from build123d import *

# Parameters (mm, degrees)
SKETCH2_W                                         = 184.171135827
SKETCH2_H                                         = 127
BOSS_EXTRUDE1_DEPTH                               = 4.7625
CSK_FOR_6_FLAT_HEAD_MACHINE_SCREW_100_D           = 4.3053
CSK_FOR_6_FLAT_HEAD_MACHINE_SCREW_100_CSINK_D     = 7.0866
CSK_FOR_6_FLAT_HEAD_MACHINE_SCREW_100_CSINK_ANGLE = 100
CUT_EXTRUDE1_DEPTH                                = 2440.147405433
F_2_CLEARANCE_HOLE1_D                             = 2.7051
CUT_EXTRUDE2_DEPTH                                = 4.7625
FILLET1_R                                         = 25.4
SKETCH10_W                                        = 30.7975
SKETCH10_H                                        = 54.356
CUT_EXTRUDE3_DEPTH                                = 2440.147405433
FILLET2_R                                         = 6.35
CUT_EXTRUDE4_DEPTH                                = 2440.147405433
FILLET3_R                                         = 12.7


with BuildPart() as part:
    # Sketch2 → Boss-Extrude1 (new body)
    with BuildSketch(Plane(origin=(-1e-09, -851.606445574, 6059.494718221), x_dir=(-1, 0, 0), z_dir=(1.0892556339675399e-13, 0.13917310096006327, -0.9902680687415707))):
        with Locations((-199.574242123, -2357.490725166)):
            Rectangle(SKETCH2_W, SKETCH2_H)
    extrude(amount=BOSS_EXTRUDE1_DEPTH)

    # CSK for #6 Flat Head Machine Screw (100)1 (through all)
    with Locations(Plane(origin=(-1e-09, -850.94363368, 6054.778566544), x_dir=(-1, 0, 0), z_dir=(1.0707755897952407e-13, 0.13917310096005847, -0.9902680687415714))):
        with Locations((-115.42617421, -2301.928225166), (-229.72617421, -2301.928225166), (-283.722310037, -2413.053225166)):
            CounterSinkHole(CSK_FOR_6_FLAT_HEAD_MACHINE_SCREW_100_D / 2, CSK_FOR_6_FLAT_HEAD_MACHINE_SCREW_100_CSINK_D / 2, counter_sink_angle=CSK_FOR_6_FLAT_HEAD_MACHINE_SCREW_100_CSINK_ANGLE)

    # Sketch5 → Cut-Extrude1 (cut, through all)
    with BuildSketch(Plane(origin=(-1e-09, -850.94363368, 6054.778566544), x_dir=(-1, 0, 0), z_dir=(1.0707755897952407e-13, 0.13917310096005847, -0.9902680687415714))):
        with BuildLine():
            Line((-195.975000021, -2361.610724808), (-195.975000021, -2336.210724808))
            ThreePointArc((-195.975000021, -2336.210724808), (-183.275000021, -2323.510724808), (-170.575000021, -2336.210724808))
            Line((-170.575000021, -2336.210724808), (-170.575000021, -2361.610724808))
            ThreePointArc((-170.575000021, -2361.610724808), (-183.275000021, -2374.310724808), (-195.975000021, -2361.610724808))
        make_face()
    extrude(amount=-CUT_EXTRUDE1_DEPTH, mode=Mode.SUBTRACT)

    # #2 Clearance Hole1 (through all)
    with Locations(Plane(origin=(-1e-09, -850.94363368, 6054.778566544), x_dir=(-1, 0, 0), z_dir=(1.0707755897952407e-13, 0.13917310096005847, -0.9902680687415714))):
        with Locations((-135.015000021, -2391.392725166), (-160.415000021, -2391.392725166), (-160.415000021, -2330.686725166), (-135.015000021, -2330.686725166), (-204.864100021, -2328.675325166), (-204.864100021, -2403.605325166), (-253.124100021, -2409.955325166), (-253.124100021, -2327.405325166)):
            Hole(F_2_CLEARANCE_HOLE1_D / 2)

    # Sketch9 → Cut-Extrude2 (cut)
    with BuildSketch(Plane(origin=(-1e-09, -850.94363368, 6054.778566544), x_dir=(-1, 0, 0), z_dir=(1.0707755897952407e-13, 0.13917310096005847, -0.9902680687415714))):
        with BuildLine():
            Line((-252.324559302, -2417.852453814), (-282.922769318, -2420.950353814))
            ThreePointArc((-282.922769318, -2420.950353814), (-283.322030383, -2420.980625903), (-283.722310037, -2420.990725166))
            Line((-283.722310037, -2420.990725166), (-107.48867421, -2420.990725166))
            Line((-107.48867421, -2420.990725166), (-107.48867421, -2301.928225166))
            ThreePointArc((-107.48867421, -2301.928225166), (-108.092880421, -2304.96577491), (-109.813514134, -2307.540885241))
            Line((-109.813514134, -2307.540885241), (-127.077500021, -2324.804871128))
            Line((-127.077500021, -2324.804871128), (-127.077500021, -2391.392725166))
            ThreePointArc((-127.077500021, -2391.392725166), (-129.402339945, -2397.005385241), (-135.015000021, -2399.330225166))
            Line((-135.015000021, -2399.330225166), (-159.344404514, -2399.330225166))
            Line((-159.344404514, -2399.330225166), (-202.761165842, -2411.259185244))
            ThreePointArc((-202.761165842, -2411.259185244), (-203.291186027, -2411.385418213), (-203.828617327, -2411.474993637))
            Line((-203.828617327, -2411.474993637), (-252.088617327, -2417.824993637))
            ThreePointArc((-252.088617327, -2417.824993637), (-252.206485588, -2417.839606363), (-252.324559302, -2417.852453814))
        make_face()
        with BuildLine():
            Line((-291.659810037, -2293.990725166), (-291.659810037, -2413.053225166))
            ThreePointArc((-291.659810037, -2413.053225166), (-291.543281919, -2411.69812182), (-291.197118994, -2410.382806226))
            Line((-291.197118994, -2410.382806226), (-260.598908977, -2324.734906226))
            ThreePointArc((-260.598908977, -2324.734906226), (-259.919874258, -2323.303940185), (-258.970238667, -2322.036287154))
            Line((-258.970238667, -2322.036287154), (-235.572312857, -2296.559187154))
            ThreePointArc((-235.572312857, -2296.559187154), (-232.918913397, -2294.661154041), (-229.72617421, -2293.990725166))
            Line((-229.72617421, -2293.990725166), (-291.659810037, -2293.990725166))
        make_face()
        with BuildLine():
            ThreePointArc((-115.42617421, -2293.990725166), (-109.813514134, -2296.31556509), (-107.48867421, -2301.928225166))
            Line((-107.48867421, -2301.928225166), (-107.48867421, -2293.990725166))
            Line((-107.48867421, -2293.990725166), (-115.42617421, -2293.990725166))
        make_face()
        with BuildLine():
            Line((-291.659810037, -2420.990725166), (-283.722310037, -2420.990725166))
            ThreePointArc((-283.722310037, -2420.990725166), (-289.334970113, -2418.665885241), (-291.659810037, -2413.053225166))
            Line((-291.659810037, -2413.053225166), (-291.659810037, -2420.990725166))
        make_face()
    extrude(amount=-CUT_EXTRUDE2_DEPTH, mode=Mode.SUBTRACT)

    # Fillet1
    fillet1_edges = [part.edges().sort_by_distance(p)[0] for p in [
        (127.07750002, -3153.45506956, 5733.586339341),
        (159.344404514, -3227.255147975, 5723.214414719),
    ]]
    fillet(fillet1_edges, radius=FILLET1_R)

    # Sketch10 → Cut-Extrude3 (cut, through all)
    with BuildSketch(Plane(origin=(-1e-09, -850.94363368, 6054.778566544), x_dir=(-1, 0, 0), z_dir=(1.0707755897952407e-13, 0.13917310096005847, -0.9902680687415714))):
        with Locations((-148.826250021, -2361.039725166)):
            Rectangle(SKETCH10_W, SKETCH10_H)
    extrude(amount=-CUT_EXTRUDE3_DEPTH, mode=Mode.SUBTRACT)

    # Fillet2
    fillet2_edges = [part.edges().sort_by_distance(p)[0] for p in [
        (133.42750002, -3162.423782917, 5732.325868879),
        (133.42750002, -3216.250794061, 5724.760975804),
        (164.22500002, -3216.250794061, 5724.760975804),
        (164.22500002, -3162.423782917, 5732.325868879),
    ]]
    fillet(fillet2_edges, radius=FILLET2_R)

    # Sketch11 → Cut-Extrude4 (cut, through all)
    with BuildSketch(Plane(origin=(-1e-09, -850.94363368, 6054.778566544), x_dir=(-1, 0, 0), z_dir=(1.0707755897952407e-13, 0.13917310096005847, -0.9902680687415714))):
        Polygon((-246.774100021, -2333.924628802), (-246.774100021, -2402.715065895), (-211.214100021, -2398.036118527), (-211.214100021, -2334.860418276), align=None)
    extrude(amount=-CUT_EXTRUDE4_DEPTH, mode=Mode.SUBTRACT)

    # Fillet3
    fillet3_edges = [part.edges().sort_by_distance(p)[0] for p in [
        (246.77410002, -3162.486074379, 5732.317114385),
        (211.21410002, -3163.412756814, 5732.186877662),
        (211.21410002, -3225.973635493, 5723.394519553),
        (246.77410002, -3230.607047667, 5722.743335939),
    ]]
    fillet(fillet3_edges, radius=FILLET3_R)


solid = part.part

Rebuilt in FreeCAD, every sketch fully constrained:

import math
import FreeCAD as App
import Part
import Sketcher

V = App.Vector
Q = App.Units.Quantity


def edges_at(feature, points):
    """Names of the edges that pass closest to the given points."""
    edges = feature.Shape.Edges
    near = lambda p: min(range(len(edges)), key=lambda i: edges[i].distToShape(Part.Vertex(*p))[0])
    return sorted({f"Edge{near(p) + 1}" for p in points})

doc = App.newDocument("Part")
body = doc.addObject("PartDesign::Body", "Body")

# Sketch on an angled plane
sketch1 = body.newObject("Sketcher::SketchObject", "Sketch")
sketch1.Placement = App.Placement(V(0, -851.606446, 6059.494718), App.Rotation(V(-1, 0, 0), V(0, 0.990268069, 0.139173101), V(0, 0.139173101, -0.990268069), "ZXY"))
sketch1.addGeometry(Part.LineSegment(V(-292, -2294, 0), V(-292, -2421, 0)), False)
sketch1.addGeometry(Part.LineSegment(V(-292, -2421, 0), V(-107, -2421, 0)), False)
sketch1.addGeometry(Part.LineSegment(V(-107, -2421, 0), V(-107, -2294, 0)), False)
sketch1.addGeometry(Part.LineSegment(V(-107, -2294, 0), V(-292, -2294, 0)), False)
sketch1.addConstraint(Sketcher.Constraint("Coincident", 0, 2, 1, 1))
sketch1.addConstraint(Sketcher.Constraint("Coincident", 1, 2, 2, 1))
sketch1.addConstraint(Sketcher.Constraint("Coincident", 2, 2, 3, 1))
sketch1.addConstraint(Sketcher.Constraint("Coincident", 3, 2, 0, 1))
sketch1.addConstraint(Sketcher.Constraint("Vertical", 0))
sketch1.addConstraint(Sketcher.Constraint("Horizontal", 1))
sketch1.addConstraint(Sketcher.Constraint("Vertical", 2))
sketch1.addConstraint(Sketcher.Constraint("Horizontal", 3))
sketch1.addConstraint(Sketcher.Constraint("DistanceY", 0, 2, 0, 1, Q("5 in")))
sketch1.addConstraint(Sketcher.Constraint("DistanceX", 1, 1, 1, 2, Q("184.171136 mm")))
sketch1.addConstraint(Sketcher.Constraint("DistanceX", 0, 2, -1, 1, Q("291.65981 mm")))
sketch1.addConstraint(Sketcher.Constraint("DistanceY", 0, 2, -1, 1, Q("2420.990726 mm")))
pad1 = body.newObject("PartDesign::Pad", "Pad")
pad1.Profile = sketch1
pad1.Length = Q("0.1875 in")

# Sketch on an angled plane
sketch2 = body.newObject("Sketcher::SketchObject", "Sketch001")
sketch2.Placement = App.Placement(V(0, -850.943634, 6054.778567), App.Rotation(V(-1, 0, 0), V(0, 0.990268069, 0.139173101), V(0, 0.139173101, -0.990268069), "ZXY"))
sketch2.addGeometry(Part.Circle(V(-115.4, -2301.9, 0), V(0, 0, 1), 2.2), False)
sketch2.addGeometry(Part.Circle(V(-229.7, -2301.9, 0), V(0, 0, 1), 2.2), False)
sketch2.addGeometry(Part.Circle(V(-283.7, -2413.1, 0), V(0, 0, 1), 2.2), False)
sketch2.addConstraint(Sketcher.Constraint("Equal", 0, 1))
sketch2.addConstraint(Sketcher.Constraint("Equal", 1, 2))
sketch2.addConstraint(Sketcher.Constraint("Horizontal", 0, 3, 1, 3))
sketch2.addConstraint(Sketcher.Constraint("Diameter", 0, Q("0.1695 in")))
sketch2.addConstraint(Sketcher.Constraint("DistanceX", 1, 3, 0, 3, Q("4.5 in")))
sketch2.addConstraint(Sketcher.Constraint("DistanceY", 2, 3, 1, 3, Q("4.375 in")))
sketch2.addConstraint(Sketcher.Constraint("DistanceX", 2, 3, -1, 1, Q("283.72231 mm")))
sketch2.addConstraint(Sketcher.Constraint("DistanceX", 0, 3, -1, 1, Q("115.426174 mm")))
sketch2.addConstraint(Sketcher.Constraint("DistanceY", 0, 3, -1, 1, Q("2301.928226 mm")))
doc.recompute()
hole = body.newObject("PartDesign::Hole", "Hole")
hole.Profile = sketch2
hole.ThreadType = "None"
hole.Diameter = Q("0.1695 in")
hole.DepthType = "ThroughAll"
hole.HoleCutType = "Countersink"
hole.HoleCutDiameter = Q("0.279 in")
hole.HoleCutCountersinkAngle = 100

# Sketch on an angled plane
sketch3 = body.newObject("Sketcher::SketchObject", "Sketch002")
sketch3.Placement = App.Placement(V(0, -850.943634, 6054.778567), App.Rotation(V(-1, 0, 0), V(0, 0.990268069, 0.139173101), V(0, 0.139173101, -0.990268069), "ZXY"))
sketch3.addGeometry(Part.LineSegment(V(-196, -2336, 0), V(-196, -2362, 0)), False)
sketch3.addGeometry(Part.ArcOfCircle(Part.Circle(V(-183, -2362, 0), V(0, 0, 1), 13), math.radians(180), math.radians(360)), False)
sketch3.addGeometry(Part.LineSegment(V(-171, -2362, 0), V(-171, -2336, 0)), False)
sketch3.addGeometry(Part.ArcOfCircle(Part.Circle(V(-183, -2336, 0), V(0, 0, 1), 13), math.radians(0), math.radians(180)), False)
sketch3.addConstraint(Sketcher.Constraint("Tangent", 0, 2, 1, 1))
sketch3.addConstraint(Sketcher.Constraint("Tangent", 1, 2, 2, 1))
sketch3.addConstraint(Sketcher.Constraint("Tangent", 2, 2, 3, 1))
sketch3.addConstraint(Sketcher.Constraint("Tangent", 3, 2, 0, 1))
sketch3.addConstraint(Sketcher.Constraint("Vertical", 0))
sketch3.addConstraint(Sketcher.Constraint("Vertical", 2))
sketch3.addConstraint(Sketcher.Constraint("Radius", 1, Q("0.5 in")))
sketch3.addConstraint(Sketcher.Constraint("DistanceY", 0, 2, 0, 1, Q("1 in")))
sketch3.addConstraint(Sketcher.Constraint("DistanceX", 1, 3, -1, 1, Q("183.275 mm")))
sketch3.addConstraint(Sketcher.Constraint("DistanceY", 1, 3, -1, 1, Q("2361.610726 mm")))
pocket1 = body.newObject("PartDesign::Pocket", "Pocket")
pocket1.Profile = sketch3
pocket1.Type = "ThroughAll"

# Sketch on an angled plane
sketch4 = body.newObject("Sketcher::SketchObject", "Sketch003")
sketch4.Placement = App.Placement(V(0, -850.943634, 6054.778567), App.Rotation(V(-1, 0, 0), V(0, 0.990268069, 0.139173101), V(0, 0.139173101, -0.990268069), "ZXY"))
sketch4.addGeometry(Part.Circle(V(-135, -2391.4, 0), V(0, 0, 1), 1.4), False)
sketch4.addGeometry(Part.Circle(V(-160.4, -2391.4, 0), V(0, 0, 1), 1.4), False)
sketch4.addGeometry(Part.Circle(V(-160.4, -2330.7, 0), V(0, 0, 1), 1.4), False)
sketch4.addGeometry(Part.Circle(V(-135, -2330.7, 0), V(0, 0, 1), 1.4), False)
sketch4.addGeometry(Part.Circle(V(-204.9, -2328.7, 0), V(0, 0, 1), 1.4), False)
sketch4.addGeometry(Part.Circle(V(-204.9, -2403.6, 0), V(0, 0, 1), 1.4), False)
sketch4.addGeometry(Part.Circle(V(-253.1, -2410, 0), V(0, 0, 1), 1.4), False)
sketch4.addGeometry(Part.Circle(V(-253.1, -2327.4, 0), V(0, 0, 1), 1.4), False)
sketch4.addConstraint(Sketcher.Constraint("Equal", 0, 1))
sketch4.addConstraint(Sketcher.Constraint("Equal", 1, 2))
sketch4.addConstraint(Sketcher.Constraint("Equal", 2, 3))
sketch4.addConstraint(Sketcher.Constraint("Equal", 3, 4))
sketch4.addConstraint(Sketcher.Constraint("Equal", 4, 5))
sketch4.addConstraint(Sketcher.Constraint("Equal", 5, 6))
sketch4.addConstraint(Sketcher.Constraint("Equal", 6, 7))
sketch4.addConstraint(Sketcher.Constraint("Horizontal", 0, 3, 1, 3))
sketch4.addConstraint(Sketcher.Constraint("Horizontal", 2, 3, 3, 3))
sketch4.addConstraint(Sketcher.Constraint("Vertical", 1, 3, 2, 3))
sketch4.addConstraint(Sketcher.Constraint("Vertical", 0, 3, 3, 3))
sketch4.addConstraint(Sketcher.Constraint("Vertical", 4, 3, 5, 3))
sketch4.addConstraint(Sketcher.Constraint("Vertical", 6, 3, 7, 3))
sketch4.addConstraint(Sketcher.Constraint("DistanceX", 1, 3, 0, 3, Q("1 in")))
sketch4.addConstraint(Sketcher.Constraint("DistanceY", 5, 3, 7, 3, Q("3 in")))
sketch4.addConstraint(Sketcher.Constraint("Diameter", 0, Q("0.1065 in")))
sketch4.addConstraint(Sketcher.Constraint("DistanceX", 6, 3, 5, 3, Q("1.9 in")))
sketch4.addConstraint(Sketcher.Constraint("DistanceY", 6, 3, 4, 3, Q("3.2 in")))
sketch4.addConstraint(Sketcher.Constraint("DistanceY", 1, 3, 2, 3, Q("2.39 in")))
sketch4.addConstraint(Sketcher.Constraint("DistanceY", 5, 3, 4, 3, Q("2.95 in")))
sketch4.addConstraint(Sketcher.Constraint("DistanceX", 0, 3, -1, 1, Q("135.015 mm")))
sketch4.addConstraint(Sketcher.Constraint("DistanceX", 4, 3, -1, 1, Q("204.8641 mm")))
sketch4.addConstraint(Sketcher.Constraint("DistanceY", 2, 3, 4, 3, Q("2.0114 mm")))
sketch4.addConstraint(Sketcher.Constraint("DistanceY", 0, 3, -1, 1, Q("2391.392726 mm")))
doc.recompute()
hole2 = body.newObject("PartDesign::Hole", "Hole001")
hole2.Profile = sketch4
hole2.ThreadType = "None"
hole2.Diameter = Q("0.1065 in")
hole2.DepthType = "ThroughAll"

# Sketch on an angled plane
sketch5 = body.newObject("Sketcher::SketchObject", "Sketch004")
sketch5.Placement = App.Placement(V(0, -850.943634, 6054.778567), App.Rotation(V(-1, 0, 0), V(0, 0.990268069, 0.139173101), V(0, 0.139173101, -0.990268069), "ZXY"))
sketch5.addGeometry(Part.LineSegment(V(-252.32, -2417.85, 0), V(-282.92, -2420.95, 0)), False)
sketch5.addGeometry(Part.ArcOfCircle(Part.Circle(V(-283.72, -2413.05, 0), V(0, 0, 1), 7.94), math.radians(-90), math.radians(-84.22)), False)
sketch5.addGeometry(Part.LineSegment(V(-283.72, -2420.99, 0), V(-107.49, -2420.99, 0)), False)
sketch5.addGeometry(Part.LineSegment(V(-107.49, -2420.99, 0), V(-107.49, -2301.93, 0)), False)
sketch5.addGeometry(Part.ArcOfCircle(Part.Circle(V(-115.43, -2301.93, 0), V(0, 0, 1), 7.94), math.radians(-45), math.radians(0)), False)
sketch5.addGeometry(Part.LineSegment(V(-109.81, -2307.54, 0), V(-127.08, -2324.8, 0)), False)
sketch5.addGeometry(Part.LineSegment(V(-127.08, -2324.8, 0), V(-127.08, -2391.39, 0)), False)
sketch5.addGeometry(Part.ArcOfCircle(Part.Circle(V(-135.02, -2391.39, 0), V(0, 0, 1), 7.94), math.radians(-90), math.radians(0)), False)
sketch5.addGeometry(Part.LineSegment(V(-135.02, -2399.33, 0), V(-159.34, -2399.33, 0)), False)
sketch5.addGeometry(Part.LineSegment(V(-159.34, -2399.33, 0), V(-202.76, -2411.26, 0)), False)
sketch5.addGeometry(Part.ArcOfCircle(Part.Circle(V(-204.86, -2403.61, 0), V(0, 0, 1), 7.94), math.radians(-82.5), math.radians(-74.64)), False)
sketch5.addGeometry(Part.LineSegment(V(-203.83, -2411.47, 0), V(-252.09, -2417.82, 0)), False)
sketch5.addGeometry(Part.ArcOfCircle(Part.Circle(V(-253.12, -2409.96, 0), V(0, 0, 1), 7.94), math.radians(-84.22), math.radians(-82.5)), False)
sketch5.addGeometry(Part.LineSegment(V(-291.66, -2293.99, 0), V(-291.66, -2413.05, 0)), False)
sketch5.addGeometry(Part.ArcOfCircle(Part.Circle(V(-283.72, -2413.05, 0), V(0, 0, 1), 7.94), math.radians(160.34), math.radians(180)), False)
sketch5.addGeometry(Part.LineSegment(V(-291.2, -2410.38, 0), V(-260.6, -2324.73, 0)), False)
sketch5.addGeometry(Part.ArcOfCircle(Part.Circle(V(-253.12, -2327.41, 0), V(0, 0, 1), 7.94), math.radians(137), math.radians(160)), False)
sketch5.addGeometry(Part.LineSegment(V(-258.97, -2322.04, 0), V(-235.57, -2296.56, 0)), False)
sketch5.addGeometry(Part.ArcOfCircle(Part.Circle(V(-229.73, -2301.93, 0), V(0, 0, 1), 7.94), math.radians(90), math.radians(137)), False)
sketch5.addGeometry(Part.LineSegment(V(-229.73, -2293.99, 0), V(-291.66, -2293.99, 0)), False)
sketch5.addGeometry(Part.ArcOfCircle(Part.Circle(V(-115.43, -2301.93, 0), V(0, 0, 1), 7.94), math.radians(0), math.radians(90)), False)
sketch5.addGeometry(Part.LineSegment(V(-107.49, -2301.93, 0), V(-107.49, -2293.99, 0)), False)
sketch5.addGeometry(Part.LineSegment(V(-107.49, -2293.99, 0), V(-115.43, -2293.99, 0)), False)
sketch5.addGeometry(Part.LineSegment(V(-291.66, -2420.99, 0), V(-283.72, -2420.99, 0)), False)
sketch5.addGeometry(Part.ArcOfCircle(Part.Circle(V(-283.72, -2413.05, 0), V(0, 0, 1), 7.94), math.radians(-180), math.radians(-90)), False)
sketch5.addGeometry(Part.LineSegment(V(-291.66, -2413.05, 0), V(-291.66, -2420.99, 0)), False)
sketch5.addConstraint(Sketcher.Constraint("Tangent", 0, 2, 1, 2))
sketch5.addConstraint(Sketcher.Constraint("Tangent", 1, 1, 2, 1))
sketch5.addConstraint(Sketcher.Constraint("Coincident", 2, 2, 3, 1))
sketch5.addConstraint(Sketcher.Constraint("Tangent", 3, 2, 4, 2))
sketch5.addConstraint(Sketcher.Constraint("Tangent", 4, 1, 5, 1))
sketch5.addConstraint(Sketcher.Constraint("Coincident", 5, 2, 6, 1))
sketch5.addConstraint(Sketcher.Constraint("Tangent", 6, 2, 7, 2))
sketch5.addConstraint(Sketcher.Constraint("Tangent", 7, 1, 8, 1))
sketch5.addConstraint(Sketcher.Constraint("Coincident", 8, 2, 9, 1))
sketch5.addConstraint(Sketcher.Constraint("Tangent", 9, 2, 10, 2))
sketch5.addConstraint(Sketcher.Constraint("Tangent", 10, 1, 11, 1))
sketch5.addConstraint(Sketcher.Constraint("Tangent", 11, 2, 12, 2))
sketch5.addConstraint(Sketcher.Constraint("Tangent", 12, 1, 0, 1))
sketch5.addConstraint(Sketcher.Constraint("Tangent", 13, 2, 14, 2))
sketch5.addConstraint(Sketcher.Constraint("Tangent", 14, 1, 15, 1))
sketch5.addConstraint(Sketcher.Constraint("Tangent", 15, 2, 16, 2))
sketch5.addConstraint(Sketcher.Constraint("Tangent", 16, 1, 17, 1))
sketch5.addConstraint(Sketcher.Constraint("Tangent", 17, 2, 18, 2))
sketch5.addConstraint(Sketcher.Constraint("Tangent", 18, 1, 19, 1))
sketch5.addConstraint(Sketcher.Constraint("Coincident", 19, 2, 13, 1))
sketch5.addConstraint(Sketcher.Constraint("Tangent", 20, 1, 21, 1))
sketch5.addConstraint(Sketcher.Constraint("Coincident", 21, 2, 22, 1))
sketch5.addConstraint(Sketcher.Constraint("Tangent", 22, 2, 20, 2))
sketch5.addConstraint(Sketcher.Constraint("Tangent", 23, 2, 24, 2))
sketch5.addConstraint(Sketcher.Constraint("Tangent", 24, 1, 25, 1))
sketch5.addConstraint(Sketcher.Constraint("Coincident", 25, 2, 23, 1))
sketch5.addConstraint(Sketcher.Constraint("Horizontal", 2))
sketch5.addConstraint(Sketcher.Constraint("Vertical", 3))
sketch5.addConstraint(Sketcher.Constraint("Vertical", 6))
sketch5.addConstraint(Sketcher.Constraint("Horizontal", 8))
sketch5.addConstraint(Sketcher.Constraint("Vertical", 13))
sketch5.addConstraint(Sketcher.Constraint("Horizontal", 19))
sketch5.addConstraint(Sketcher.Constraint("Vertical", 21))
sketch5.addConstraint(Sketcher.Constraint("Horizontal", 22))
sketch5.addConstraint(Sketcher.Constraint("Horizontal", 23))
sketch5.addConstraint(Sketcher.Constraint("Vertical", 25))
sketch5.addConstraint(Sketcher.Constraint("Coincident", 14, 3, 1, 3))
sketch5.addConstraint(Sketcher.Constraint("Coincident", 20, 3, 4, 3))
sketch5.addConstraint(Sketcher.Constraint("Coincident", 24, 3, 1, 3))
sketch5.addConstraint(Sketcher.Constraint("Equal", 1, 4))
sketch5.addConstraint(Sketcher.Constraint("Equal", 4, 7))
sketch5.addConstraint(Sketcher.Constraint("Equal", 7, 10))
sketch5.addConstraint(Sketcher.Constraint("Equal", 10, 14))
sketch5.addConstraint(Sketcher.Constraint("Equal", 14, 16))
sketch5.addConstraint(Sketcher.Constraint("Equal", 16, 18))
sketch5.addConstraint(Sketcher.Constraint("Equal", 18, 20))
sketch5.addConstraint(Sketcher.Constraint("Equal", 20, 24))
sketch5.addConstraint(Sketcher.Constraint("Horizontal", 4, 3, 18, 3))
sketch5.addConstraint(Sketcher.Constraint("Vertical", 12, 3, 16, 3))
sketch5.addConstraint(Sketcher.Constraint("Angle", 5, Q("-135 deg")))
sketch5.addConstraint(Sketcher.Constraint("Radius", 1, Q("0.3125 in")))
sketch5.addConstraint(Sketcher.Constraint("DistanceY", 10, 3, 16, 3, Q("3 in")))
sketch5.addConstraint(Sketcher.Constraint("Radius", 12, Q("0.3125002 in")))
sketch5.addConstraint(Sketcher.Constraint("DistanceX", 12, 3, 10, 3, Q("1.9 in")))
sketch5.addConstraint(Sketcher.Constraint("DistanceX", 18, 3, 4, 3, Q("4.5 in")))
sketch5.addConstraint(Sketcher.Constraint("DistanceY", 3, 1, 3, 2, Q("4.6875 in")))
sketch5.addConstraint(Sketcher.Constraint("DistanceY", 12, 3, 10, 3, Q("0.2499998 in")))
sketch5.addConstraint(Sketcher.Constraint("DistanceX", 7, 3, -1, 1, Q("135.015 mm")))
sketch5.addConstraint(Sketcher.Constraint("DistanceX", 10, 3, -1, 1, Q("204.8641 mm")))
sketch5.addConstraint(Sketcher.Constraint("DistanceY", 7, 3, 4, 3, Q("89.4645 mm")))
sketch5.addConstraint(Sketcher.Constraint("DistanceY", 10, 3, 7, 3, Q("12.2126 mm")))
sketch5.addConstraint(Sketcher.Constraint("DistanceX", 1, 3, 15, 2, Q("23.123401 mm")))
sketch5.addConstraint(Sketcher.Constraint("Distance", 17, Q("34.59112 mm")))
sketch5.addConstraint(Sketcher.Constraint("DistanceX", 8, 2, 8, 1, Q("24.329404 mm")))
sketch5.addConstraint(Sketcher.Constraint("DistanceY", 16, 1, -1, 1, Q("2322.036288 mm")))
pocket2 = body.newObject("PartDesign::Pocket", "Pocket001")
pocket2.Profile = sketch5
pocket2.Length = Q("0.1875 in")
doc.recompute()

fillet = body.newObject("PartDesign::Fillet", "Fillet")
fillet.Base = (pocket2, edges_at(pocket2, [(127.078, -3153.455, 5733.586), (159.344, -3227.255, 5723.214)]))
fillet.Radius = Q("1 in")

# Sketch on an angled plane
sketch6 = body.newObject("Sketcher::SketchObject", "Sketch005")
sketch6.Placement = App.Placement(V(0, -850.943634, 6054.778567), App.Rotation(V(-1, 0, 0), V(0, 0.990268069, 0.139173101), V(0, 0.139173101, -0.990268069), "ZXY"))
sketch6.addGeometry(Part.LineSegment(V(-164, -2334, 0), V(-164, -2388, 0)), False)
sketch6.addGeometry(Part.LineSegment(V(-164, -2388, 0), V(-133, -2388, 0)), False)
sketch6.addGeometry(Part.LineSegment(V(-133, -2388, 0), V(-133, -2334, 0)), False)
sketch6.addGeometry(Part.LineSegment(V(-133, -2334, 0), V(-164, -2334, 0)), False)
sketch6.addConstraint(Sketcher.Constraint("Coincident", 0, 2, 1, 1))
sketch6.addConstraint(Sketcher.Constraint("Coincident", 1, 2, 2, 1))
sketch6.addConstraint(Sketcher.Constraint("Coincident", 2, 2, 3, 1))
sketch6.addConstraint(Sketcher.Constraint("Coincident", 3, 2, 0, 1))
sketch6.addConstraint(Sketcher.Constraint("Vertical", 0))
sketch6.addConstraint(Sketcher.Constraint("Horizontal", 1))
sketch6.addConstraint(Sketcher.Constraint("Vertical", 2))
sketch6.addConstraint(Sketcher.Constraint("Horizontal", 3))
sketch6.addConstraint(Sketcher.Constraint("DistanceY", 0, 2, 0, 1, Q("2.14 in")))
sketch6.addConstraint(Sketcher.Constraint("DistanceX", 1, 1, 1, 2, Q("1.2125 in")))
sketch6.addConstraint(Sketcher.Constraint("DistanceX", 0, 2, -1, 1, Q("164.225 mm")))
sketch6.addConstraint(Sketcher.Constraint("DistanceY", 0, 2, -1, 1, Q("2388.217726 mm")))
pocket3 = body.newObject("PartDesign::Pocket", "Pocket002")
pocket3.Profile = sketch6
pocket3.Type = "ThroughAll"
doc.recompute()

fillet2 = body.newObject("PartDesign::Fillet", "Fillet001")
fillet2.Base = (pocket3, edges_at(pocket3, [
    (133.428, -3162.424, 5732.326),
    (133.428, -3216.251, 5724.761),
    (164.225, -3216.251, 5724.761),
    (164.225, -3162.424, 5732.326),
]))
fillet2.Radius = Q("0.25 in")

# Sketch on an angled plane
sketch7 = body.newObject("Sketcher::SketchObject", "Sketch006")
sketch7.Placement = App.Placement(V(0, -850.943634, 6054.778567), App.Rotation(V(-1, 0, 0), V(0, 0.990268069, 0.139173101), V(0, 0.139173101, -0.990268069), "ZXY"))
sketch7.addGeometry(Part.LineSegment(V(-247, -2334, 0), V(-247, -2403, 0)), False)
sketch7.addGeometry(Part.LineSegment(V(-247, -2403, 0), V(-211, -2398, 0)), False)
sketch7.addGeometry(Part.LineSegment(V(-211, -2398, 0), V(-211, -2335, 0)), False)
sketch7.addGeometry(Part.LineSegment(V(-211, -2335, 0), V(-247, -2334, 0)), False)
sketch7.addConstraint(Sketcher.Constraint("Coincident", 0, 2, 1, 1))
sketch7.addConstraint(Sketcher.Constraint("Coincident", 1, 2, 2, 1))
sketch7.addConstraint(Sketcher.Constraint("Coincident", 2, 2, 3, 1))
sketch7.addConstraint(Sketcher.Constraint("Coincident", 3, 2, 0, 1))
sketch7.addConstraint(Sketcher.Constraint("Vertical", 0))
sketch7.addConstraint(Sketcher.Constraint("Vertical", 2))
sketch7.addConstraint(Sketcher.Constraint("DistanceX", 0, 2, 1, 2, Q("1.4 in")))
sketch7.addConstraint(Sketcher.Constraint("DistanceY", 2, 1, 2, 2, Q("63.1757 mm")))
sketch7.addConstraint(Sketcher.Constraint("DistanceX", 0, 2, -1, 1, Q("246.7741 mm")))
sketch7.addConstraint(Sketcher.Constraint("Distance", 3, Q("35.572311 mm")))
sketch7.addConstraint(Sketcher.Constraint("DistanceY", 0, 2, 0, 1, Q("68.790437 mm")))
sketch7.addConstraint(Sketcher.Constraint("DistanceY", 1, 2, -1, 1, Q("2398.03612 mm")))
pocket4 = body.newObject("PartDesign::Pocket", "Pocket003")
pocket4.Profile = sketch7
pocket4.Type = "ThroughAll"
doc.recompute()

fillet3 = body.newObject("PartDesign::Fillet", "Fillet002")
fillet3.Base = (pocket4, edges_at(pocket4, [
    (246.774, -3162.486, 5732.317),
    (211.214, -3163.413, 5732.187),
    (211.214, -3225.974, 5723.395),
    (246.774, -3230.607, 5722.743),
]))
fillet3.Radius = Q("0.5 in")

doc.recompute()
